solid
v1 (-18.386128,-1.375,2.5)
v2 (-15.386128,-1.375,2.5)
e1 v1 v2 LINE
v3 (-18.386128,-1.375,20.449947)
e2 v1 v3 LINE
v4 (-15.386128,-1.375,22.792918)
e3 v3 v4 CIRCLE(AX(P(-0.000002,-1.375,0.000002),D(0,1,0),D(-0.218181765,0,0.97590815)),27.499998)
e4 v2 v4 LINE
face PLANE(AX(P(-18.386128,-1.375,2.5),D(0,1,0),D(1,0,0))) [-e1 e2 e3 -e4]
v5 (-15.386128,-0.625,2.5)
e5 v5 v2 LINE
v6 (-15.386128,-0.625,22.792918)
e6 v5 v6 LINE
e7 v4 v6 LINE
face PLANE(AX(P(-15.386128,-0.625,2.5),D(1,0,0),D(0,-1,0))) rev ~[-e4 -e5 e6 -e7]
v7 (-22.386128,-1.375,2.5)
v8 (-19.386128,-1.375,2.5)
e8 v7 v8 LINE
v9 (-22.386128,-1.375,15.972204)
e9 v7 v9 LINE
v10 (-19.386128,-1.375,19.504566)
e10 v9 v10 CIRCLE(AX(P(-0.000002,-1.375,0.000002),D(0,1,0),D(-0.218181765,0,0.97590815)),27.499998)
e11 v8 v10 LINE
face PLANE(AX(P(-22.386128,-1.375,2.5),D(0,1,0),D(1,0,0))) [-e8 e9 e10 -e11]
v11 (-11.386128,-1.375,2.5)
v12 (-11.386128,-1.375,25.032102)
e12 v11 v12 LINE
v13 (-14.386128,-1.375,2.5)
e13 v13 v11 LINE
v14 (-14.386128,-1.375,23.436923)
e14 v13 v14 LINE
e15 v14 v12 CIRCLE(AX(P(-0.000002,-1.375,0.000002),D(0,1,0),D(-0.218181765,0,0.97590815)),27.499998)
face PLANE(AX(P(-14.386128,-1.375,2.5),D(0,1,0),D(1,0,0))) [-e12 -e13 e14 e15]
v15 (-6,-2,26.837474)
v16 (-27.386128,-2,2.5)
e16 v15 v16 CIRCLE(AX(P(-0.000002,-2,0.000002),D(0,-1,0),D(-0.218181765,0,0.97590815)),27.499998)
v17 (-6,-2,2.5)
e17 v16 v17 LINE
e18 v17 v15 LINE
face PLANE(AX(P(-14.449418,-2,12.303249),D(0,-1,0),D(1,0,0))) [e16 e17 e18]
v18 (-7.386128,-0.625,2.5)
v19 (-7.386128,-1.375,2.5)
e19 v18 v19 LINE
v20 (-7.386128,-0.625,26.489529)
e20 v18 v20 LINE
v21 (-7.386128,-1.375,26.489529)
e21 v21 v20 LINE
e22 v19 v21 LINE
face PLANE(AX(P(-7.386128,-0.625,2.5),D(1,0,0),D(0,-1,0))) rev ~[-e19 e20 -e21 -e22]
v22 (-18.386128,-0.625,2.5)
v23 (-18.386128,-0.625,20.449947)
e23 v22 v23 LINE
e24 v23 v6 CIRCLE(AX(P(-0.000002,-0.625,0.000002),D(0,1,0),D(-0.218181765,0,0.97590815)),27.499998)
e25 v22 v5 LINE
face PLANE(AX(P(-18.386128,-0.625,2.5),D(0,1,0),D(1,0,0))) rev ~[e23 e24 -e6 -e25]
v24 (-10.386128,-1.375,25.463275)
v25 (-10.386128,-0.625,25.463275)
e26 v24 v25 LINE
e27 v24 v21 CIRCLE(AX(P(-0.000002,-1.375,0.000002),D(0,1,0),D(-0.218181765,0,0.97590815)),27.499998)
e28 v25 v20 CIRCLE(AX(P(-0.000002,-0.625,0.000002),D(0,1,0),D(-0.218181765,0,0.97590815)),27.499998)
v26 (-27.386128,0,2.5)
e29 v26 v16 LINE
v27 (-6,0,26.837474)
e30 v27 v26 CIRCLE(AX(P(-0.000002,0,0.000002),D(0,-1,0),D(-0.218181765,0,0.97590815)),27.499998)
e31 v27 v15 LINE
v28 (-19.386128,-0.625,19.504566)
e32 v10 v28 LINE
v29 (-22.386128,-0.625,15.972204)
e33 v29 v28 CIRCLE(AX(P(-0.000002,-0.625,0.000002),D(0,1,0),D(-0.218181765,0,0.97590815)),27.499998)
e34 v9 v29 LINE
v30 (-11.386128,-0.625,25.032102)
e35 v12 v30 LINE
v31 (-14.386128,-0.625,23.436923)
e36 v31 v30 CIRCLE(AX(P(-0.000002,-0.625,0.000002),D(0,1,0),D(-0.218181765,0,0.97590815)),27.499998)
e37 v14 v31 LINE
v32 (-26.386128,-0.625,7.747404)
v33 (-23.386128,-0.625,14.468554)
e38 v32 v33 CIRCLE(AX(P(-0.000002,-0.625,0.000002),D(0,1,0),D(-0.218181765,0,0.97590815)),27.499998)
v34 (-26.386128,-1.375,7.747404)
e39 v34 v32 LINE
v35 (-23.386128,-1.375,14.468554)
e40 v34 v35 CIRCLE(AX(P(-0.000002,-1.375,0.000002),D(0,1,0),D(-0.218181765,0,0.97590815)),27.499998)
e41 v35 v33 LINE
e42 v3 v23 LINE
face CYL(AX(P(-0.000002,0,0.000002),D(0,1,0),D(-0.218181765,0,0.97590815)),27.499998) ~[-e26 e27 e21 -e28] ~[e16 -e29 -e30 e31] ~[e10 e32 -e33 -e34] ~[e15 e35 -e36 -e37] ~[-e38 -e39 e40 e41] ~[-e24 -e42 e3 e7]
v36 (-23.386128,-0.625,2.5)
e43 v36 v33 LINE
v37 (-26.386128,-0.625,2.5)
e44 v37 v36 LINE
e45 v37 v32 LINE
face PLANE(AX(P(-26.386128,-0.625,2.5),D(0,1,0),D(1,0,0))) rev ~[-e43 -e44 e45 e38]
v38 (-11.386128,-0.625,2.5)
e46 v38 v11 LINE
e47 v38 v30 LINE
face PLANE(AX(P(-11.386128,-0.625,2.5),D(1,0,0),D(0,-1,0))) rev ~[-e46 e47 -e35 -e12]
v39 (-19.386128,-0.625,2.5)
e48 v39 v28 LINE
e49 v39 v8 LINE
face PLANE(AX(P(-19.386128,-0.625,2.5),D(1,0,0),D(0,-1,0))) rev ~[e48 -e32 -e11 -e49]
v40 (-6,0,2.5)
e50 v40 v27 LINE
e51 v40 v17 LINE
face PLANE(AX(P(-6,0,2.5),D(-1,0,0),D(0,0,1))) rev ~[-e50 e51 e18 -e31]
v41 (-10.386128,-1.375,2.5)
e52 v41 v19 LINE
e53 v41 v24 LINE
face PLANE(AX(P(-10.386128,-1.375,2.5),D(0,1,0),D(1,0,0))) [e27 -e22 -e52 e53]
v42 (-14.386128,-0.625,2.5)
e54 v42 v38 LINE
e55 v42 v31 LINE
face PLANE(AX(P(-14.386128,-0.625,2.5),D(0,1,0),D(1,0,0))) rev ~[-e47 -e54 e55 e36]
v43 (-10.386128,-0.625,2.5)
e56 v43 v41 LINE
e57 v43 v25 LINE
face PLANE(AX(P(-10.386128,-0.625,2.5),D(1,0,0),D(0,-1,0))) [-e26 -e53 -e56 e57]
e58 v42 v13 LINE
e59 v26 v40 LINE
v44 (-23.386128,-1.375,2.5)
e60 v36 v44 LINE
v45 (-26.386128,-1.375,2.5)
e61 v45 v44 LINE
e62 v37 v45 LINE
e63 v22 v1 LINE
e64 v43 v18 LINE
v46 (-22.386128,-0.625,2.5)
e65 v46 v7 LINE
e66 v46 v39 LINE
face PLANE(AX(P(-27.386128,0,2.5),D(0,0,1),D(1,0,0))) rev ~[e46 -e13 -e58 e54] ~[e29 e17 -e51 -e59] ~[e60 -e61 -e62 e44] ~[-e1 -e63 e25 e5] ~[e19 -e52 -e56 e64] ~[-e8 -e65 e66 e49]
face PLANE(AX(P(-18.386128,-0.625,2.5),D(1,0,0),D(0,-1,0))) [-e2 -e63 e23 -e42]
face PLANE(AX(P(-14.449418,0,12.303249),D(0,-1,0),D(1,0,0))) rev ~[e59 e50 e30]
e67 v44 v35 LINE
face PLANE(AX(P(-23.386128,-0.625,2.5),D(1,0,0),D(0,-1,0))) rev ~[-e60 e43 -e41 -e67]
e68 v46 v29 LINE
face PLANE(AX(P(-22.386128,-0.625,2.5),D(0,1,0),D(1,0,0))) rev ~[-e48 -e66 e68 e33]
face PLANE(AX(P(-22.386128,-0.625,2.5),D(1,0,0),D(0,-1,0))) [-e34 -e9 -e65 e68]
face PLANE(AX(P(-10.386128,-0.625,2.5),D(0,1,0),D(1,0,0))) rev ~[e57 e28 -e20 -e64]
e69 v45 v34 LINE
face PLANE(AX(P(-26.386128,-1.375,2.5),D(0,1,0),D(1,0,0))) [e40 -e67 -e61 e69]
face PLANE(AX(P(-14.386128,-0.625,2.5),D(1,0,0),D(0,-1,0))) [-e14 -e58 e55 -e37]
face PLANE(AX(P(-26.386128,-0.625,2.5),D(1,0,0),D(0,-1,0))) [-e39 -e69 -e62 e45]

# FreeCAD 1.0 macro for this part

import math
import FreeCAD as App
import Part
import Sketcher

V = App.Vector


def add_polygon(sketch, points):
    """Adds a closed chain of lines whose ends are joined by coincident constraints."""
    first, n = sketch.GeometryCount, len(points)
    for a, b in zip(points, points[1:] + points[:1]):
        sketch.addGeometry(Part.LineSegment(App.Vector(*a, 0), App.Vector(*b, 0)), False)
    for i in range(n):
        sketch.addConstraint(Sketcher.Constraint("Coincident", first + i, 2, first + (i + 1) % n, 1))

doc = App.newDocument("Part")
params = doc.addObject("Spreadsheet::Sheet", "Params")
for row, (alias, value) in enumerate([
    ("sketch1_radius", "27.499998 mm"),
    ("pad1_length", "2 mm"),
    ("sketch2_width", "3 mm"),
    ("sketch2_height", "0.75 mm"),
    ("pocket1_length", "25 mm"),
], start=1):
    params.set(f"A{row}", alias)
    params.set(f"B{row}", "=" + value)
    params.setAlias(f"B{row}", alias)

body = doc.addObject("PartDesign::Body", "Body")

sketch1 = body.newObject("Sketcher::SketchObject", "Sketch")
sketch1.AttachmentSupport = (doc.getObject("XZ_Plane"), [""])
sketch1.MapMode = "FlatFace"
sketch1.addGeometry([
    Part.LineSegment(V(-6, 2, 0), V(-6, 27, 0)),
    Part.ArcOfCircle(Part.Circle(V(0, 0, 0), V(0, 0, 1), 27), math.radians(103), math.radians(175)),
    Part.LineSegment(V(-27, 2, 0), V(-6, 2, 0)),
], False)
sketch1.addConstraint([
    Sketcher.Constraint("Coincident", 0, 2, 1, 1),
    Sketcher.Constraint("Coincident", 1, 2, 2, 1),
    Sketcher.Constraint("Coincident", 2, 2, 0, 1),
    Sketcher.Constraint("Vertical", 0),
    Sketcher.Constraint("Horizontal", 2),
    Sketcher.Constraint("Coincident", 1, 3, -1, 1),
    Sketcher.Constraint("Radius", 1, 27.499998),
    Sketcher.Constraint("DistanceX", 0, 2, -1, 1, 6.0),
    Sketcher.Constraint("DistanceY", -1, 1, 1, 2, 2.5),
])
sketch1.setExpression("Constraints[6]", "Params.sketch1_radius")
pad1 = body.newObject("PartDesign::Pad", "Pad")
pad1.Profile = sketch1
pad1.setExpression("Length", "Params.pad1_length")

sketch2 = body.newObject("Sketcher::SketchObject", "Sketch001")
sketch2.AttachmentSupport = (doc.getObject("XY_Plane"), [""])
sketch2.MapMode = "FlatFace"
sketch2.AttachmentOffset = App.Placement(V(0, 0, 2.5), App.Rotation())
add_polygon(sketch2, [(-26.4, -1.4), (-26.4, -0.6), (-23.4, -0.6), (-23.4, -1.4)])
add_polygon(sketch2, [(-22.4, -1.4), (-22.4, -0.6), (-19.4, -0.6), (-19.4, -1.4)])
add_polygon(sketch2, [(-18.4, -1.4), (-18.4, -0.6), (-15.4, -0.6), (-15.4, -1.4)])
add_polygon(sketch2, [(-14.4, -1.4), (-14.4, -0.6), (-11.4, -0.6), (-11.4, -1.4)])
add_polygon(sketch2, [(-10.4, -1.4), (-10.4, -0.6), (-7.4, -0.6), (-7.4, -1.4)])
sketch2.addConstraint([
    Sketcher.Constraint("Vertical", 0),
    Sketcher.Constraint("Horizontal", 1),
    Sketcher.Constraint("Vertical", 2),
    Sketcher.Constraint("Horizontal", 3),
    Sketcher.Constraint("Vertical", 4),
    Sketcher.Constraint("Horizontal", 5),
    Sketcher.Constraint("Vertical", 6),
    Sketcher.Constraint("Horizontal", 7),
    Sketcher.Constraint("Vertical", 8),
    Sketcher.Constraint("Horizontal", 9),
    Sketcher.Constraint("Vertical", 10),
    Sketcher.Constraint("Horizontal", 11),
    Sketcher.Constraint("Vertical", 12),
    Sketcher.Constraint("Horizontal", 13),
    Sketcher.Constraint("Vertical", 14),
    Sketcher.Constraint("Horizontal", 15),
    Sketcher.Constraint("Vertical", 16),
    Sketcher.Constraint("Horizontal", 17),
    Sketcher.Constraint("Vertical", 18),
    Sketcher.Constraint("Horizontal", 19),
    Sketcher.Constraint("Horizontal", 1, 2, 4, 2),
    Sketcher.Constraint("Horizontal", 3, 2, 6, 2),
    Sketcher.Constraint("Horizontal", 5, 2, 8, 2),
    Sketcher.Constraint("Horizontal", 7, 2, 10, 2),
    Sketcher.Constraint("Horizontal", 9, 2, 12, 2),
    Sketcher.Constraint("Horizontal", 11, 2, 14, 2),
    Sketcher.Constraint("Horizontal", 13, 2, 16, 2),
    Sketcher.Constraint("Horizontal", 15, 2, 18, 2),
    Sketcher.Constraint("Equal", 3, 5),
    Sketcher.Constraint("Equal", 7, 9),
    Sketcher.Constraint("Equal", 11, 13),
    Sketcher.Constraint("Equal", 15, 17),
    Sketcher.Constraint("DistanceX", 1, 1, 1, 2, 3.0),
    Sketcher.Constraint("DistanceX", 1, 2, 4, 2, 1.0),
    Sketcher.Constraint("DistanceX", 5, 2, 8, 2, 1.0),
    Sketcher.Constraint("DistanceX", 9, 2, 12, 2, 1.0),
    Sketcher.Constraint("DistanceX", 13, 2, 16, 2, 1.0),
    Sketcher.Constraint("DistanceY", 0, 1, 0, 2, 0.75),
    Sketcher.Constraint("DistanceY", 0, 2, -1, 1, 0.625),
    Sketcher.Constraint("DistanceX", 17, 2, -1, 1, 7.386128),
])
sketch2.setExpression("Constraints[52]", "Params.sketch2_width")
sketch2.setExpression("Constraints[57]", "Params.sketch2_height")
pocket1 = body.newObject("PartDesign::Pocket", "Pocket")
pocket1.Profile = sketch2
pocket1.setExpression("Length", "Params.pocket1_length")
pocket1.Reversed = True

doc.recompute()
